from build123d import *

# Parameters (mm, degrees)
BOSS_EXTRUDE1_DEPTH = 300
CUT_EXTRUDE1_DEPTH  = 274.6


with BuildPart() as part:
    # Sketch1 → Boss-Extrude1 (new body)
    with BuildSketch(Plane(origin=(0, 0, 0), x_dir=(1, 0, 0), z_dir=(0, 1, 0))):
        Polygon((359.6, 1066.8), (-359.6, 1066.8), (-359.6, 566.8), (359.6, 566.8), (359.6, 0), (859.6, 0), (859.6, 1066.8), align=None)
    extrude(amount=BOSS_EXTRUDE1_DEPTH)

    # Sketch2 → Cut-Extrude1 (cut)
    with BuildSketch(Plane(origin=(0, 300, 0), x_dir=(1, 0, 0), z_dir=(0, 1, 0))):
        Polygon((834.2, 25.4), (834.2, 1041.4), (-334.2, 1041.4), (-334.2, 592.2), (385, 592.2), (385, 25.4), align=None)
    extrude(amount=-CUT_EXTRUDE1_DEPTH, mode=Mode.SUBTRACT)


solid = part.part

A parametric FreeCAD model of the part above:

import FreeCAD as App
import Part
import Sketcher

V = App.Vector
Q = App.Units.Quantity


def add_polygon(sketch, points):
    """Adds a closed chain of lines whose ends are joined by coincident constraints."""
    first, n = sketch.GeometryCount, len(points)
    for a, b in zip(points, points[1:] + points[:1]):
        sketch.addGeometry(Part.LineSegment(App.Vector(*a, 0), App.Vector(*b, 0)), False)
    for i in range(n):
        sketch.addConstraint(Sketcher.Constraint("Coincident", first + i, 2, first + (i + 1) % n, 1))

doc = App.newDocument("Part")
body = doc.addObject("PartDesign::Body", "Body")

sketch1 = body.newObject("Sketcher::SketchObject", "Sketch")
sketch1.AttachmentSupport = (doc.getObject("XZ_Plane"), [""])
sketch1.MapMode = "FlatFace"
add_polygon(sketch1, [(-360, -1067), (-360, -567), (360, -567), (360, 0), (860, 0), (860, -1067)])
sketch1.addConstraint([
    Sketcher.Constraint("Vertical", 0),
    Sketcher.Constraint("Horizontal", 1),
    Sketcher.Constraint("Vertical", 2),
    Sketcher.Constraint("Horizontal", 3),
    Sketcher.Constraint("Vertical", 4),
    Sketcher.Constraint("Horizontal", 5),
    Sketcher.Constraint("PointOnObject", 2, 2, -1),
    Sketcher.Constraint("Equal", 3, 0),
    Sketcher.Constraint("DistanceX", 3, 1, 3, 2, Q("500 mm")),
    Sketcher.Constraint("DistanceX", 1, 1, 1, 2, Q("719.2 mm")),
    Sketcher.Constraint("DistanceY", 2, 1, 2, 2, Q("566.8 mm")),
    Sketcher.Constraint("DistanceX", 0, 2, -1, 1, Q("359.6 mm")),
])
pad1 = body.newObject("PartDesign::Pad", "Pad")
pad1.Profile = sketch1
pad1.Length = 300
pad1.Reversed = True

sketch2 = body.newObject("Sketcher::SketchObject", "Sketch001")
sketch2.AttachmentSupport = (doc.getObject("XZ_Plane"), [""])
sketch2.MapMode = "FlatFace"
sketch2.AttachmentOffset = App.Placement(V(0, 0, -300), App.Rotation())
add_polygon(sketch2, [(834, -25), (834, -1041), (-334, -1041), (-334, -592), (385, -592), (385, -25)])
sketch2.addConstraint([
    Sketcher.Constraint("Vertical", 0),
    Sketcher.Constraint("Horizontal", 1),
    Sketcher.Constraint("Vertical", 2),
    Sketcher.Constraint("Horizontal", 3),
    Sketcher.Constraint("Vertical", 4),
    Sketcher.Constraint("Horizontal", 5),
    Sketcher.Constraint("Equal", 5, 2),
    Sketcher.Constraint("DistanceY", 0, 2, 0, 1, Q("1016 mm")),
    Sketcher.Constraint("DistanceX", 1, 2, 1, 1, Q("1168.4 mm")),
    Sketcher.Constraint("DistanceX", 3, 1, 3, 2, Q("719.2 mm")),
    Sketcher.Constraint("DistanceX", -1, 1, 3, 2, Q("385 mm")),
    Sketcher.Constraint("DistanceY", 0, 2, -1, 1, Q("1041.4 mm")),
])
pocket1 = body.newObject("PartDesign::Pocket", "Pocket")
pocket1.Profile = sketch2
pocket1.Length = 274.6
pocket1.Reversed = True

doc.recompute()
